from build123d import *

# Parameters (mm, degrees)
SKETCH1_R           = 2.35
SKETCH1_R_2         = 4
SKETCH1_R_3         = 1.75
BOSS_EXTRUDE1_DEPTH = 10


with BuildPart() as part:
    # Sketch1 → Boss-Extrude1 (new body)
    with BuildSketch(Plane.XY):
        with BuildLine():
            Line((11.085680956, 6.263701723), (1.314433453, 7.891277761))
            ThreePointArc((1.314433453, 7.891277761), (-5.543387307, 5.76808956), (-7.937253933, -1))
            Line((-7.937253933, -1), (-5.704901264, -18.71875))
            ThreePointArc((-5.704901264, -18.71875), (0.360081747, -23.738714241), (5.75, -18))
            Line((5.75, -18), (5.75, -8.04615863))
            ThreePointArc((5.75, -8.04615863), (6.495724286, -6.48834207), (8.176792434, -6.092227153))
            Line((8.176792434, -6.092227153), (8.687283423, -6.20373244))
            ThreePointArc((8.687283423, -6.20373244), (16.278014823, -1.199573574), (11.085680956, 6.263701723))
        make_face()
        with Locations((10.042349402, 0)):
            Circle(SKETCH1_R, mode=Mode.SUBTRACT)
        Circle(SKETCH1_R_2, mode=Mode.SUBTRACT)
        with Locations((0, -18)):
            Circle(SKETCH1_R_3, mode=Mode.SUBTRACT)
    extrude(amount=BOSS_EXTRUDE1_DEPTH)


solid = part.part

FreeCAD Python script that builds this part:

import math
import FreeCAD as App
import Part
import Sketcher

V = App.Vector
Q = App.Units.Quantity

doc = App.newDocument("Part")
params = doc.addObject("Spreadsheet::Sheet", "Params")
for row, (alias, value) in enumerate([
    ("sketch1_diameter", "8 mm"),
    ("sketch1_radius", "8 mm"),
    ("sketch1_radius2", "2 mm"),
    ("sketch1_diameter2", "3.5 mm"),
    ("sketch1_diameter3", "4.7 mm"),
    ("pad1_length", "10 mm"),
], start=1):
    params.set(f"A{row}", alias)
    params.set(f"B{row}", "=" + value)
    params.setAlias(f"B{row}", alias)

body = doc.addObject("PartDesign::Body", "Body")

# Sketch on XY plane
sketch1 = doc.addObject("Sketcher::SketchObject", "Sketch")
body.addObject(sketch1)
sketch1.AttachmentSupport = (doc.XY_Plane, [""])
sketch1.MapMode = "FlatFace"
sketch1.addGeometry([
    Part.LineSegment(V(11.085681, 6.263702, 0), V(1.314433, 7.891278, 0)),  # 0
    Part.ArcOfCircle(Part.Circle(V(0, 0, 0), V(0, 0, 1), 8), math.radians(80.543185), math.radians(187.180756)),  # 1
    Part.LineSegment(V(-7.937254, -1, 0), V(-5.704901, -18.71875, 0)),  # 2
    Part.ArcOfCircle(Part.Circle(V(0, -18, 0), V(0, 0, 1), 5.75), math.radians(-172.819244), math.radians(0)),  # 3
    Part.LineSegment(V(5.75, -18, 0), V(5.75, -8.046159, 0)),  # 4
    Part.ArcOfCircle(Part.Circle(V(7.75, -8.046159, 0), V(0, 0, 1), 2), math.radians(77.678546), math.radians(180)),  # 5
    Part.LineSegment(V(8.176792, -6.092227, 0), V(8.687283, -6.203732, 0)),  # 6
    Part.ArcOfCircle(Part.Circle(V(10.042349, 0, 0), V(0, 0, 1), 6.35), math.radians(-102.321454), math.radians(80.543185)),  # 7
    Part.Circle(V(0, -18, 0), V(0, 0, 1), 1.75),  # 8
    Part.Circle(V(0, 0, 0), V(0, 0, 1), 4),  # 9
    Part.Circle(V(10.042349, 0, 0), V(0, 0, 1), 2.35),  # 10
], False)
sketch1.addConstraint([
    Sketcher.Constraint("Coincident", 0, 2, 1, 1),
    Sketcher.Constraint("Coincident", 1, 2, 2, 1),
    Sketcher.Constraint("Coincident", 2, 2, 3, 1),
    Sketcher.Constraint("Coincident", 3, 2, 4, 1),
    Sketcher.Constraint("Coincident", 4, 2, 5, 2),
    Sketcher.Constraint("Coincident", 5, 1, 6, 1),
    Sketcher.Constraint("Coincident", 6, 2, 7, 1),
    Sketcher.Constraint("Coincident", 7, 2, 0, 1),
    Sketcher.Constraint("Vertical", 4),
    Sketcher.Constraint("Coincident", 1, 3, -1, 1),
    Sketcher.Constraint("Coincident", 9, 3, -1, 1),
    Sketcher.Constraint("Coincident", 8, 3, 3, 3),
    Sketcher.Constraint("Coincident", 10, 3, 7, 3),
    Sketcher.Constraint("PointOnObject", 3, 3, -2),
    Sketcher.Constraint("PointOnObject", 7, 3, -1),
    Sketcher.Constraint("Diameter", 9, Q("8 mm")),
    Sketcher.Constraint("Radius", 1, Q("8 mm")),
    Sketcher.Constraint("Radius", 5, Q("2 mm")),
    Sketcher.Constraint("Diameter", 8, Q("3.5 mm")),
    Sketcher.Constraint("Diameter", 10, Q("4.7 mm")),
    Sketcher.Constraint("Radius", 3, Q("5.75 mm")),
    Sketcher.Constraint("Radius", 7, Q("6.35 mm")),
    Sketcher.Constraint("DistanceY", 3, 3, -1, 1, Q("18 mm")),
    Sketcher.Constraint("DistanceY", 1, 2, -1, 1, Q("1 mm")),
    Sketcher.Constraint("DistanceY", 3, 2, -1, 1, Q("18 mm")),
    Sketcher.Constraint("DistanceY", 4, 1, 4, 2, Q("9.953841 mm")),
    Sketcher.Constraint("DistanceX", 2, 2, -1, 1, Q("5.704901 mm")),
    Sketcher.Constraint("DistanceY", -1, 1, 7, 2, Q("6.263702 mm")),
    Sketcher.Constraint("Distance", 0, Q("9.905871 mm")),
    Sketcher.Constraint("DistanceY", 5, 3, -1, 1, Q("8.046159 mm")),
    Sketcher.Constraint("DistanceX", -1, 1, 7, 3, Q("10.042349 mm")),
    Sketcher.Constraint("DistanceY", 5, 3, 5, 1, Q("1.953931 mm")),
    Sketcher.Constraint("DistanceX", 5, 1, 6, 2, Q("0.510491 mm")),
])
sketch1.setExpression("Constraints[15]", "Params.sketch1_diameter")
sketch1.setExpression("Constraints[16]", "Params.sketch1_radius")
sketch1.setExpression("Constraints[17]", "Params.sketch1_radius2")
sketch1.setExpression("Constraints[18]", "Params.sketch1_diameter2")
sketch1.setExpression("Constraints[19]", "Params.sketch1_diameter3")
pad1 = doc.addObject("PartDesign::Pad", "Pad")
body.addObject(pad1)
pad1.Profile = sketch1
pad1.setExpression("Length", "Params.pad1_length")

doc.recompute()
